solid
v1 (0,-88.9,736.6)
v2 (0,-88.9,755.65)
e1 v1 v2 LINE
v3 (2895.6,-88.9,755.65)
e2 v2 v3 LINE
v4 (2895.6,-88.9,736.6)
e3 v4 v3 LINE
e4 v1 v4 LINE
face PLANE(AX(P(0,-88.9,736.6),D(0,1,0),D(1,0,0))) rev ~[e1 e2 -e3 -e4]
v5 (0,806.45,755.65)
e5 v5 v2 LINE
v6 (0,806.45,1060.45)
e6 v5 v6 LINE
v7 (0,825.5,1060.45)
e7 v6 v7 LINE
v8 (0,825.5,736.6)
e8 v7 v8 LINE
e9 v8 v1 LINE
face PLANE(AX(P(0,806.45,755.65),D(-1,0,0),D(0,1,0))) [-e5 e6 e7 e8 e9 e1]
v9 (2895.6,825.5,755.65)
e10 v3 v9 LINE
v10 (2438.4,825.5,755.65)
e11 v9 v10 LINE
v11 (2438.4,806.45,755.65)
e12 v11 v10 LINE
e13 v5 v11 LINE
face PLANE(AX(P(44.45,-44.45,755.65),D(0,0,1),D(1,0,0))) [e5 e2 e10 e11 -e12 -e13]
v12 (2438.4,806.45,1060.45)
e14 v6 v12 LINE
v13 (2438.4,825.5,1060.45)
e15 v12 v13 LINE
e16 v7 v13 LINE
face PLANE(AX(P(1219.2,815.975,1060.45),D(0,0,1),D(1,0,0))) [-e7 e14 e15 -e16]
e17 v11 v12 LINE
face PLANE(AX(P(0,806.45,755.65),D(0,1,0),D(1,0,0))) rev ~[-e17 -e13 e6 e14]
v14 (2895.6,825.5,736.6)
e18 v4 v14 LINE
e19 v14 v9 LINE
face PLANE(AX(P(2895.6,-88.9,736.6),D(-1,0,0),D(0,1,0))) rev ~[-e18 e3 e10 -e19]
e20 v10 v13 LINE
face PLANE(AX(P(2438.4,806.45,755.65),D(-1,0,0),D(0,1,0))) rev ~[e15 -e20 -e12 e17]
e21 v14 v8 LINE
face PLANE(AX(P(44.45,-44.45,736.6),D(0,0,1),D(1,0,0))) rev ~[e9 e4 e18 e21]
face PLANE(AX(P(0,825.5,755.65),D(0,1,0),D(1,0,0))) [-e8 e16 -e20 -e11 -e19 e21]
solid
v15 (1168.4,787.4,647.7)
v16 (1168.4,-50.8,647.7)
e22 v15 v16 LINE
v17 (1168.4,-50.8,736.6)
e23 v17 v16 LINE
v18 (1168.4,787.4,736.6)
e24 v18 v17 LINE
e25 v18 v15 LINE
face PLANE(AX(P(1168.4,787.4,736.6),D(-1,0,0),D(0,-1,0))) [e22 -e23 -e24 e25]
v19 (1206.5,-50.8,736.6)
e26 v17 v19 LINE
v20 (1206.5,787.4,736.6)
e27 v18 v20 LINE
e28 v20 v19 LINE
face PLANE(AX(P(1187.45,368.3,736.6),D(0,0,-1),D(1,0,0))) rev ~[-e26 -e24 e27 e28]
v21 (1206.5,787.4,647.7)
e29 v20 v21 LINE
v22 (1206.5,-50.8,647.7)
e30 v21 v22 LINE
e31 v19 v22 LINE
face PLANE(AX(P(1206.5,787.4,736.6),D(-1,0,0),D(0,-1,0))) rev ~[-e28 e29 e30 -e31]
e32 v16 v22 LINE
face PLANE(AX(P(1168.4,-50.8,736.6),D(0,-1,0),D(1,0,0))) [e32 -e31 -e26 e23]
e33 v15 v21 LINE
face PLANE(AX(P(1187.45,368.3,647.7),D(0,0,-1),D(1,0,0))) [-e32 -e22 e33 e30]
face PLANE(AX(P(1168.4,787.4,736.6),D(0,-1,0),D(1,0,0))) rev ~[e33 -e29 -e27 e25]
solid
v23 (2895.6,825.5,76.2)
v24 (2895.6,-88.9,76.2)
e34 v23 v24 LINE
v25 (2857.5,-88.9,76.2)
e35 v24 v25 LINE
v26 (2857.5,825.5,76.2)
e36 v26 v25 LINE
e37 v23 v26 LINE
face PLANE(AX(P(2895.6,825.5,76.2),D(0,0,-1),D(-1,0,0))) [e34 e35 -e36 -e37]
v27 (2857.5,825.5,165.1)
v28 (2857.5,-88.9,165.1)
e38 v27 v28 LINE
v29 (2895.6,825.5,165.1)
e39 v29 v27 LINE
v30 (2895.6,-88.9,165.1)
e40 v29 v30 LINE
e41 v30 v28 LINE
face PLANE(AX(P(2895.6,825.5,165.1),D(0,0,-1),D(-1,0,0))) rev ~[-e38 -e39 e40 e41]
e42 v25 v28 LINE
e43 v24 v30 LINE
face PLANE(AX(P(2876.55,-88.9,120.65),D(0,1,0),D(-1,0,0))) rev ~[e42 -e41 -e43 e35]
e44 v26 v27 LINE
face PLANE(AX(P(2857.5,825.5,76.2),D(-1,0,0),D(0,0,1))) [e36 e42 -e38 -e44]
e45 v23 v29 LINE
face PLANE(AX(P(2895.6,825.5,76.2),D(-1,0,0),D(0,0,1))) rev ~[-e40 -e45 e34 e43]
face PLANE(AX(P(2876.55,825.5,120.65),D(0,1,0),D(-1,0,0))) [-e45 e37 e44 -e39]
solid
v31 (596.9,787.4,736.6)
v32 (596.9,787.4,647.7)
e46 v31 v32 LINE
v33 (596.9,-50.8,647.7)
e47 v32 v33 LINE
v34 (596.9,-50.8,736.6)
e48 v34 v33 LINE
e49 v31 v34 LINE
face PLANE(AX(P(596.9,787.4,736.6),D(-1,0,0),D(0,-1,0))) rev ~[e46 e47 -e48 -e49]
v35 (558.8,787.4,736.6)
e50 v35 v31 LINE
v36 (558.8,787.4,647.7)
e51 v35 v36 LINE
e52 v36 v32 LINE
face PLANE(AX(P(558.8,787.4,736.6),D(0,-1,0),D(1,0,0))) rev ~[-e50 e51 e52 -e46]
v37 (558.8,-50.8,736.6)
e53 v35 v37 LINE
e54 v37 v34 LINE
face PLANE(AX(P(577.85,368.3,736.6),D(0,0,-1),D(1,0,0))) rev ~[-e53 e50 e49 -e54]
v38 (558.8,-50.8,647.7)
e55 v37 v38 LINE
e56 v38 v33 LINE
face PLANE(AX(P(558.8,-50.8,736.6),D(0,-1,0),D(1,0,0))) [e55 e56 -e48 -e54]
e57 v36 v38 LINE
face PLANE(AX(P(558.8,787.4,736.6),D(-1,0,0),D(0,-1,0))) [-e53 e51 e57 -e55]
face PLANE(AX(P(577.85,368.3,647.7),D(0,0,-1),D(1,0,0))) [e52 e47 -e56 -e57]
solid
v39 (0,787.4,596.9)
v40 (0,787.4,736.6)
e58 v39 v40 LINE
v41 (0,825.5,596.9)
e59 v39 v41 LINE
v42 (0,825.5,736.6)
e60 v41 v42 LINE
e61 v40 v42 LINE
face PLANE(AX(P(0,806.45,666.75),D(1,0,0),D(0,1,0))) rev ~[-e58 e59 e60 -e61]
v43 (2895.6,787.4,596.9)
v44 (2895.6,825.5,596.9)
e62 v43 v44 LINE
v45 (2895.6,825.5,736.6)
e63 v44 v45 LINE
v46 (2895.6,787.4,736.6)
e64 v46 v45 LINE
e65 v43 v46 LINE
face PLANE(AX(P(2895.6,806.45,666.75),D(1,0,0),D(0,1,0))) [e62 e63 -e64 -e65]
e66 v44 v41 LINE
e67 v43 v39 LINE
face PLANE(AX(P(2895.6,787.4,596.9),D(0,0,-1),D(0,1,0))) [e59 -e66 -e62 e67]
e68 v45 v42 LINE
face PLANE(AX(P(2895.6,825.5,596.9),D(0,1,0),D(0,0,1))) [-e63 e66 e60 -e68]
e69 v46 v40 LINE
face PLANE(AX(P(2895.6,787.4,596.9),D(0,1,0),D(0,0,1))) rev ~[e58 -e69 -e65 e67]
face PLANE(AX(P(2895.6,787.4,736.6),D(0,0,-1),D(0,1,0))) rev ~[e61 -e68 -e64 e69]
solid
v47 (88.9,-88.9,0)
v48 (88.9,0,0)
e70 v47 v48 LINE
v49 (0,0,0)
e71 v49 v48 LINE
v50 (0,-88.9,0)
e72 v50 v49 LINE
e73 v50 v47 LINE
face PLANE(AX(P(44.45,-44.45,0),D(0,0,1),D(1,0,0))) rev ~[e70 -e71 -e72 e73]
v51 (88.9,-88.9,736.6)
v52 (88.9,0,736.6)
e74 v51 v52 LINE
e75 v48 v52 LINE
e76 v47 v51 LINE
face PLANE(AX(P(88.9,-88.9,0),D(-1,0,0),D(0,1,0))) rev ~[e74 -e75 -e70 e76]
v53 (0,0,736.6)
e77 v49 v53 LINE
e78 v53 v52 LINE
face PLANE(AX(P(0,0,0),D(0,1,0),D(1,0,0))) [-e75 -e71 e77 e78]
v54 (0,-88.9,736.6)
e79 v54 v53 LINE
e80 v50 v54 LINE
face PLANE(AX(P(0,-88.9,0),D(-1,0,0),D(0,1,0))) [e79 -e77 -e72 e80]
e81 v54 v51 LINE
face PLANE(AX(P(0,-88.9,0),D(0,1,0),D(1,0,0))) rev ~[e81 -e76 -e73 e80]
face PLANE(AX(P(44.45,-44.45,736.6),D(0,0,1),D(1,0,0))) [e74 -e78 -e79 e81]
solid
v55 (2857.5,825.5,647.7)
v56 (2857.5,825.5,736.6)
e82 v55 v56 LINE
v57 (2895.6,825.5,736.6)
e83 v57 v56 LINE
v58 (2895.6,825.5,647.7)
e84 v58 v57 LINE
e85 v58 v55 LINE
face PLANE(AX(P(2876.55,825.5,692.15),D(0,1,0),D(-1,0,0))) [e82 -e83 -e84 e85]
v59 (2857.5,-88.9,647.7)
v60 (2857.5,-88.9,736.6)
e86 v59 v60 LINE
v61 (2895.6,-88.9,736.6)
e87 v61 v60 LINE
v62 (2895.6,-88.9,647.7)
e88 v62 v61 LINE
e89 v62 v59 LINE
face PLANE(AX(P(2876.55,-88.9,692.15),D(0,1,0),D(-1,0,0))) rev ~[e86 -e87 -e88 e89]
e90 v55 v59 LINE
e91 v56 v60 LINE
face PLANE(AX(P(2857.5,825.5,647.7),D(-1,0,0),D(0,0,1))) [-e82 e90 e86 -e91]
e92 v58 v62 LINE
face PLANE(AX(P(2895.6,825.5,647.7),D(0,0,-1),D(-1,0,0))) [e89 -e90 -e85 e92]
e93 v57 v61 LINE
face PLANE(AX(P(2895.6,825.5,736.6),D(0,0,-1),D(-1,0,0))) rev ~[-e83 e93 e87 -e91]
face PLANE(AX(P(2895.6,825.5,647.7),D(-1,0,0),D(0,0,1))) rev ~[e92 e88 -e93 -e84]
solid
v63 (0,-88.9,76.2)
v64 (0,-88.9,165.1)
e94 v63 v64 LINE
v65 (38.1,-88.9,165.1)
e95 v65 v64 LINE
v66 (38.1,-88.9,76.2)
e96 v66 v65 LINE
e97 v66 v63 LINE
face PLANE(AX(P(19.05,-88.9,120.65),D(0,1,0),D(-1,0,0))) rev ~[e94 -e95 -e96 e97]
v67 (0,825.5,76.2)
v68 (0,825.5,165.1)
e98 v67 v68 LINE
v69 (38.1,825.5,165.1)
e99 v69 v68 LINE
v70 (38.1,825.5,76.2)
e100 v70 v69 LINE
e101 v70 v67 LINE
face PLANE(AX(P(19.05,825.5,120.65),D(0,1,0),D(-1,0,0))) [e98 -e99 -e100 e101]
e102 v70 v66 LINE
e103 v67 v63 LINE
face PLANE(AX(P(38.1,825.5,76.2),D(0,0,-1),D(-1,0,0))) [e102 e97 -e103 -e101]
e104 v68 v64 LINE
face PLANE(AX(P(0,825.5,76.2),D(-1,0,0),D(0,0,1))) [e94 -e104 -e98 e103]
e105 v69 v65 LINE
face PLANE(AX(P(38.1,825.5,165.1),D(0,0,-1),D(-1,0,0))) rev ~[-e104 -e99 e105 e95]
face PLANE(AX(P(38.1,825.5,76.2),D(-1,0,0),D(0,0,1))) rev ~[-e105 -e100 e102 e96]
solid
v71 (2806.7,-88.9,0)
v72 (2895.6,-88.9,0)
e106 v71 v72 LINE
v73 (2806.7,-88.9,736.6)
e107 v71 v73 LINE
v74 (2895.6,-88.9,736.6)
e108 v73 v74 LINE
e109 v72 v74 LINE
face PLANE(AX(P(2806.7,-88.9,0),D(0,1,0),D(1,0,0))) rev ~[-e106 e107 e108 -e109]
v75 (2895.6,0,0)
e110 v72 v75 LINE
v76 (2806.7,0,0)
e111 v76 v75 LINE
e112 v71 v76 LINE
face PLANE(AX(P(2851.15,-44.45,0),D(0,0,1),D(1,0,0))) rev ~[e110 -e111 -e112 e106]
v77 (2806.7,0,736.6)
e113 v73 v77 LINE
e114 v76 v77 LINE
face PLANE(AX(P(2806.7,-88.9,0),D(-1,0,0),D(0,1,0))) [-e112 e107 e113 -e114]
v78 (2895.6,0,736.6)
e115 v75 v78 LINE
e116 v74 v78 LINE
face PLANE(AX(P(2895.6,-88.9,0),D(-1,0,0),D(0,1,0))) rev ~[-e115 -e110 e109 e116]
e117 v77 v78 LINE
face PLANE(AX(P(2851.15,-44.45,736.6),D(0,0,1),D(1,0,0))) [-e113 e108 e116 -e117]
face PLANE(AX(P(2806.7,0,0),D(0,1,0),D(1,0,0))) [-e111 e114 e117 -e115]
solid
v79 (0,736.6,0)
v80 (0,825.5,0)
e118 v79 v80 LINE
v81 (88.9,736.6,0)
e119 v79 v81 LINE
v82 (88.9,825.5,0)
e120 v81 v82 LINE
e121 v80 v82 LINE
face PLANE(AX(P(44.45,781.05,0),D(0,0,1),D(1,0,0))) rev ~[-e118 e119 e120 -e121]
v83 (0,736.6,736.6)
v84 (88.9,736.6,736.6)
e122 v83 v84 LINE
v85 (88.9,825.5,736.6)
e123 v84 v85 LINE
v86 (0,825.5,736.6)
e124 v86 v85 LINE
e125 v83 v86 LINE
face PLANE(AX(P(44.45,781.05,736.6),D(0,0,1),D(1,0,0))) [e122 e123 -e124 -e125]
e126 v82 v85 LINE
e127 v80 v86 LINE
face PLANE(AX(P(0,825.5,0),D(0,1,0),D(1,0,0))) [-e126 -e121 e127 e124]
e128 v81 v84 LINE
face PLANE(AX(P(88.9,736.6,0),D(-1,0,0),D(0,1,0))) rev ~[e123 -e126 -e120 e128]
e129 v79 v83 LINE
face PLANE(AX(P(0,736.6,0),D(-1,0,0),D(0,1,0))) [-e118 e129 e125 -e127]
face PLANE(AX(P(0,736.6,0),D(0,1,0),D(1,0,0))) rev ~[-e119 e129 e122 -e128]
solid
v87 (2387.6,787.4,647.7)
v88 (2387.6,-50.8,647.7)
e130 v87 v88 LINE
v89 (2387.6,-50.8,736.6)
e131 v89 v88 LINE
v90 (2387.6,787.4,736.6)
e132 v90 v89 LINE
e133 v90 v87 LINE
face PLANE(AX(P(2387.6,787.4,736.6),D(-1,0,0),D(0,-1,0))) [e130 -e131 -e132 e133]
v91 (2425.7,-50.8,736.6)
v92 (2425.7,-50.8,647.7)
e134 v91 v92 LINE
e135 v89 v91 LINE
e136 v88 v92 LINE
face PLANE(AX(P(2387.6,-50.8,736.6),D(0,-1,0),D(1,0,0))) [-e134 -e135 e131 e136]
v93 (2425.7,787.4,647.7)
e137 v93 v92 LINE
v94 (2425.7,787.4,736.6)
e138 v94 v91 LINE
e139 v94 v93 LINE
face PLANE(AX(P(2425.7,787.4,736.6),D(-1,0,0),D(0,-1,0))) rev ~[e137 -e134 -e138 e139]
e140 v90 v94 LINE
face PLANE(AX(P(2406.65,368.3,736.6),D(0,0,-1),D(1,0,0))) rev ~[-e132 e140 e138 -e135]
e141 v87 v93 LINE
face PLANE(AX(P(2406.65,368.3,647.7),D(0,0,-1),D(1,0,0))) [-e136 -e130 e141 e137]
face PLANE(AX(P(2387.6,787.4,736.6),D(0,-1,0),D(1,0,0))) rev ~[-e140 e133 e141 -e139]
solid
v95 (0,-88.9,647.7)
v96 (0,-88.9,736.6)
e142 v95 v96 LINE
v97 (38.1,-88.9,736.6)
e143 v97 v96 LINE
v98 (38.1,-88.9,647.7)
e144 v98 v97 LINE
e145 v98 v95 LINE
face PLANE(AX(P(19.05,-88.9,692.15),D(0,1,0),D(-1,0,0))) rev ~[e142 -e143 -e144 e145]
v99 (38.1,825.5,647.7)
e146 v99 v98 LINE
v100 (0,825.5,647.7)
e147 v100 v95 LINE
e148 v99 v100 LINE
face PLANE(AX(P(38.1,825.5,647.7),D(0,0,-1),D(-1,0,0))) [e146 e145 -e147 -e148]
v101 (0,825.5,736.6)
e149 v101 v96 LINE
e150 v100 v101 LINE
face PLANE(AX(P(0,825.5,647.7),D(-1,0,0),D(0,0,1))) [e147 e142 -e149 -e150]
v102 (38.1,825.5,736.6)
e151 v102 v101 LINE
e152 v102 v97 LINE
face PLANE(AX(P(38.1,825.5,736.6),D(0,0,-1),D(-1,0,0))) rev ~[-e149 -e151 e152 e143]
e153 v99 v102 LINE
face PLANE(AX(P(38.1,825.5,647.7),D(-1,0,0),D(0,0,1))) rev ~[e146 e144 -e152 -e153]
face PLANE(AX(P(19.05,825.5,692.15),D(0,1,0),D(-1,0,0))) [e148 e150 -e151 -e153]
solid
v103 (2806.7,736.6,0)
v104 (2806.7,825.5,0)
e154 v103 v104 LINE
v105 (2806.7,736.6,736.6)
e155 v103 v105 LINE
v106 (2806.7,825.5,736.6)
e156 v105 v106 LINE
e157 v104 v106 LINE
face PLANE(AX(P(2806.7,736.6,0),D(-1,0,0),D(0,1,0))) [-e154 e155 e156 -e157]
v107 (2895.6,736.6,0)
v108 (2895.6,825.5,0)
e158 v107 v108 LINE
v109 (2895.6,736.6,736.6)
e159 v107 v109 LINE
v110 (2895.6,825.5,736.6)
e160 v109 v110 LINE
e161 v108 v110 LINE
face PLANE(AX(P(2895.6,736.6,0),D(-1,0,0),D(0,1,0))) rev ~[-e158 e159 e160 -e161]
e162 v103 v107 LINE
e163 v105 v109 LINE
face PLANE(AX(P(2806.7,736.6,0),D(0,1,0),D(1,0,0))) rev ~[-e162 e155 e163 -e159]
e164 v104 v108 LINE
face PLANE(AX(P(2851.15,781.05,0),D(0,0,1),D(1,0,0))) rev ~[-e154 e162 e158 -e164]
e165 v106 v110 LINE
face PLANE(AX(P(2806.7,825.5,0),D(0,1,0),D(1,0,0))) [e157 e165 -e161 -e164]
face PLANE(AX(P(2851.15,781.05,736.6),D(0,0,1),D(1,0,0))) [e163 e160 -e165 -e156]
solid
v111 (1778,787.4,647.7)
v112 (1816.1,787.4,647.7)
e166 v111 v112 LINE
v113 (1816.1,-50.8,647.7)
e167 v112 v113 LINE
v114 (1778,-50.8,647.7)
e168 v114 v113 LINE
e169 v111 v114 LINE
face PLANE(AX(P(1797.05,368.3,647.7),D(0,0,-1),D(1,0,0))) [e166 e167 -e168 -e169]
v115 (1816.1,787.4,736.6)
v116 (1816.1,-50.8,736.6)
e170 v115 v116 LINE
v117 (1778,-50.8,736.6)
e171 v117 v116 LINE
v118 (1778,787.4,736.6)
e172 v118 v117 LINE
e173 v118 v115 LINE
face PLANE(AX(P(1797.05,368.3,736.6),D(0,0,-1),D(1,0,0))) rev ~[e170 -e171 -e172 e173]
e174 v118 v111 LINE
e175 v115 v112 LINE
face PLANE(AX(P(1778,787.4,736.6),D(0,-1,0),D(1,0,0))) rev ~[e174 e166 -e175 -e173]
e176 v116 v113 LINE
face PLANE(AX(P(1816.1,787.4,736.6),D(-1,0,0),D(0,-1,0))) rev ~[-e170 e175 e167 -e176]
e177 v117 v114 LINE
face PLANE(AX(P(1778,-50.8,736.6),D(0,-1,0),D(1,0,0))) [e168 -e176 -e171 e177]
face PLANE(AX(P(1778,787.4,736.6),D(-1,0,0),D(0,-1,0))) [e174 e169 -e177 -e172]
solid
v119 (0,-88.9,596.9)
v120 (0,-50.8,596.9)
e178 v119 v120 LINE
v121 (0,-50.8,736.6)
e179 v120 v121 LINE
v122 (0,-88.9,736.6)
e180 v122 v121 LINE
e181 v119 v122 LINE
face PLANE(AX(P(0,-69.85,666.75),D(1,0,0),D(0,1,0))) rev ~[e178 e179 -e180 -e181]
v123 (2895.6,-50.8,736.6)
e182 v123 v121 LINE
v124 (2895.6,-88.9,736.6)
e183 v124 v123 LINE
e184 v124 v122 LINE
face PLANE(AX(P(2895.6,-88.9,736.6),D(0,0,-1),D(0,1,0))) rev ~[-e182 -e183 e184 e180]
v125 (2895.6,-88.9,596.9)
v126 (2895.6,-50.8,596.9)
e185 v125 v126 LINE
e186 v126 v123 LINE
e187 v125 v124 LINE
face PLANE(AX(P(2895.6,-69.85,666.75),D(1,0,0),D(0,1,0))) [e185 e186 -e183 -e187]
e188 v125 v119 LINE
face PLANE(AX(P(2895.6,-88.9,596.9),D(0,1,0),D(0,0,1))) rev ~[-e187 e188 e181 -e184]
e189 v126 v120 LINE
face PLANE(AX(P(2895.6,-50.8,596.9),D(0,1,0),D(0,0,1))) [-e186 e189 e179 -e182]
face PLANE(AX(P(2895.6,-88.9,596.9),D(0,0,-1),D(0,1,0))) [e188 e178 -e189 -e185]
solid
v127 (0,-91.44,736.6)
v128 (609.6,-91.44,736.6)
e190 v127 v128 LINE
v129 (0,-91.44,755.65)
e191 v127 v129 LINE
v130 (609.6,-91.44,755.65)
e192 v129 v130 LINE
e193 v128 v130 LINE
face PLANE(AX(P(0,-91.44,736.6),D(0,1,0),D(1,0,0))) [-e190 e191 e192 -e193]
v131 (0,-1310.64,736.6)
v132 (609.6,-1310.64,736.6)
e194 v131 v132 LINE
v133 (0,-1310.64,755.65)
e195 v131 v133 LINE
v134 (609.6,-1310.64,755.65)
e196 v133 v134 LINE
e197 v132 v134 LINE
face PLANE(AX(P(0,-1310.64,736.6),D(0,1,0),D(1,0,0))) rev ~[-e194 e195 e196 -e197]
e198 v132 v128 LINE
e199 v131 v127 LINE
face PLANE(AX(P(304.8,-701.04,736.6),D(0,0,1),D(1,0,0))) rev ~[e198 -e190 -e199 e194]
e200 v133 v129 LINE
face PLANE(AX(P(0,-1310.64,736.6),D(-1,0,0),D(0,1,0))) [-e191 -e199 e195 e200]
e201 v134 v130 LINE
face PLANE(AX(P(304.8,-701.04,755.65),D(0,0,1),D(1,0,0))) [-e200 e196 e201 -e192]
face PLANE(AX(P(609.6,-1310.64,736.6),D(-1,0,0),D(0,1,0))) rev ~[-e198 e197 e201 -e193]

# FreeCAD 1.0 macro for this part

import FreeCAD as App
import Part
import Sketcher

V = App.Vector
Q = App.Units.Quantity

doc = App.newDocument("Part")
params = doc.addObject("Spreadsheet::Sheet", "Params")
for row, (alias, value) in enumerate([
    ("sketch1_width", "3.5 in"),
    ("pad1_length", "29 in"),
    ("sketch2_width", "3.5 in"),
    ("pad2_length", "29 in"),
    ("sketch3_width", "3.5 in"),
    ("pad3_length", "29 in"),
    ("sketch4_width", "3.5 in"),
    ("pad4_length", "29 in"),
    ("sketch5_width", "114 in"),
    ("sketch5_height", "36 in"),
    ("pad5_length", "0.75 in"),
    ("sketch6_width", "96 in"),
    ("sketch6_height", "0.75 in"),
    ("pad6_length", "12 in"),
    ("sketch7_width", "24 in"),
    ("sketch7_height", "48 in"),
    ("pad7_length", "0.75 in"),
    ("sketch8_width", "1.5 in"),
    ("sketch8_height", "3.5 in"),
    ("pad8_length", "36 in"),
    ("sketch9_width", "1.5 in"),
    ("sketch9_height", "3.5 in"),
    ("pad9_length", "36 in"),
    ("sketch10_width", "1.5 in"),
    ("sketch10_height", "3.5 in"),
    ("pad10_length", "36 in"),
    ("sketch11_width", "1.5 in"),
    ("sketch11_height", "3.5 in"),
    ("pad11_length", "36 in"),
    ("sketch12_width", "1.5 in"),
    ("sketch12_height", "5.5 in"),
    ("pad12_length", "114 in"),
    ("sketch13_width", "1.5 in"),
    ("sketch13_height", "5.5 in"),
    ("pad13_length", "114 in"),
    ("sketch14_height", "33 in"),
    ("sketch14_width", "1.5 in"),
    ("pad14_length", "3.5 in"),
    ("sketch15_height", "33 in"),
    ("sketch15_width", "1.5 in"),
    ("pad15_length", "3.5 in"),
    ("sketch16_height", "33 in"),
    ("sketch16_width", "1.5 in"),
    ("pad16_length", "3.5 in"),
    ("sketch17_height", "33 in"),
    ("sketch17_width", "1.5 in"),
    ("pad17_length", "3.5 in"),
], start=1):
    params.set(f"A{row}", alias)
    params.set(f"B{row}", "=" + value)
    params.setAlias(f"B{row}", alias)

body = doc.addObject("PartDesign::Body", "Body")

sketch1 = body.newObject("Sketcher::SketchObject", "Sketch")
sketch1.AttachmentSupport = (doc.getObject("XY_Plane"), [""])
sketch1.MapMode = "FlatFace"
sketch1.addGeometry([
    Part.LineSegment(V(0, 0, 0), V(0, -89, 0)),
    Part.LineSegment(V(0, -89, 0), V(89, -89, 0)),
    Part.LineSegment(V(89, -89, 0), V(89, 0, 0)),
    Part.LineSegment(V(89, 0, 0), V(0, 0, 0)),
], False)
sketch1.addConstraint([
    Sketcher.Constraint("Coincident", 0, 2, 1, 1),
    Sketcher.Constraint("Coincident", 1, 2, 2, 1),
    Sketcher.Constraint("Coincident", 2, 2, 3, 1),
    Sketcher.Constraint("Coincident", 3, 2, 0, 1),
    Sketcher.Constraint("Vertical", 0),
    Sketcher.Constraint("Horizontal", 1),
    Sketcher.Constraint("Vertical", 2),
    Sketcher.Constraint("Horizontal", 3),
    Sketcher.Constraint("Coincident", 3, 2, -1, 1),
    Sketcher.Constraint("Equal", 3, 0),
    Sketcher.Constraint("DistanceX", 1, 1, 1, 2, Q("3.5 in")),
])
sketch1.setExpression("Constraints[10]", "Params.sketch1_width")
pad1 = body.newObject("PartDesign::Pad", "Pad")
pad1.Profile = sketch1
pad1.setExpression("Length", "Params.pad1_length")
body2 = doc.addObject("PartDesign::Body", "Body001")

sketch2 = body2.newObject("Sketcher::SketchObject", "Sketch001")
sketch2.AttachmentSupport = (doc.getObject("XY_Plane001"), [""])
sketch2.MapMode = "FlatFace"
sketch2.addGeometry([
    Part.LineSegment(V(0, 826, 0), V(0, 737, 0)),
    Part.LineSegment(V(0, 737, 0), V(89, 737, 0)),
    Part.LineSegment(V(89, 737, 0), V(89, 826, 0)),
    Part.LineSegment(V(89, 826, 0), V(0, 826, 0)),
], False)
sketch2.addConstraint([
    Sketcher.Constraint("Coincident", 0, 2, 1, 1),
    Sketcher.Constraint("Coincident", 1, 2, 2, 1),
    Sketcher.Constraint("Coincident", 2, 2, 3, 1),
    Sketcher.Constraint("Coincident", 3, 2, 0, 1),
    Sketcher.Constraint("Vertical", 0),
    Sketcher.Constraint("Horizontal", 1),
    Sketcher.Constraint("Vertical", 2),
    Sketcher.Constraint("Horizontal", 3),
    Sketcher.Constraint("PointOnObject", 0, 2, -2),
    Sketcher.Constraint("Equal", 3, 0),
    Sketcher.Constraint("DistanceX", 1, 1, 1, 2, Q("3.5 in")),
    Sketcher.Constraint("DistanceY", -1, 1, 0, 2, Q("29 in")),
])
sketch2.setExpression("Constraints[10]", "Params.sketch2_width")
pad2 = body2.newObject("PartDesign::Pad", "Pad001")
pad2.Profile = sketch2
pad2.setExpression("Length", "Params.pad2_length")
body3 = doc.addObject("PartDesign::Body", "Body002")

sketch3 = body3.newObject("Sketcher::SketchObject", "Sketch002")
sketch3.AttachmentSupport = (doc.getObject("XY_Plane002"), [""])
sketch3.MapMode = "FlatFace"
sketch3.addGeometry([
    Part.LineSegment(V(2807, 0, 0), V(2807, -89, 0)),
    Part.LineSegment(V(2807, -89, 0), V(2896, -89, 0)),
    Part.LineSegment(V(2896, -89, 0), V(2896, 0, 0)),
    Part.LineSegment(V(2896, 0, 0), V(2807, 0, 0)),
], False)
sketch3.addConstraint([
    Sketcher.Constraint("Coincident", 0, 2, 1, 1),
    Sketcher.Constraint("Coincident", 1, 2, 2, 1),
    Sketcher.Constraint("Coincident", 2, 2, 3, 1),
    Sketcher.Constraint("Coincident", 3, 2, 0, 1),
    Sketcher.Constraint("Vertical", 0),
    Sketcher.Constraint("Horizontal", 1),
    Sketcher.Constraint("Vertical", 2),
    Sketcher.Constraint("Horizontal", 3),
    Sketcher.Constraint("PointOnObject", 2, 2, -1),
    Sketcher.Constraint("Equal", 3, 0),
    Sketcher.Constraint("DistanceX", 1, 1, 1, 2, Q("3.5 in")),
    Sketcher.Constraint("DistanceX", -1, 1, 1, 2, Q("114 in")),
])
sketch3.setExpression("Constraints[10]", "Params.sketch3_width")
pad3 = body3.newObject("PartDesign::Pad", "Pad002")
pad3.Profile = sketch3
pad3.setExpression("Length", "Params.pad3_length")
body4 = doc.addObject("PartDesign::Body", "Body003")

sketch4 = body4.newObject("Sketcher::SketchObject", "Sketch003")
sketch4.AttachmentSupport = (doc.getObject("XY_Plane003"), [""])
sketch4.MapMode = "FlatFace"
sketch4.addGeometry([
    Part.LineSegment(V(2807, 826, 0), V(2807, 737, 0)),
    Part.LineSegment(V(2807, 737, 0), V(2896, 737, 0)),
    Part.LineSegment(V(2896, 737, 0), V(2896, 826, 0)),
    Part.LineSegment(V(2896, 826, 0), V(2807, 826, 0)),
], False)
sketch4.addConstraint([
    Sketcher.Constraint("Coincident", 0, 2, 1, 1),
    Sketcher.Constraint("Coincident", 1, 2, 2, 1),
    Sketcher.Constraint("Coincident", 2, 2, 3, 1),
    Sketcher.Constraint("Coincident", 3, 2, 0, 1),
    Sketcher.Constraint("Vertical", 0),
    Sketcher.Constraint("Horizontal", 1),
    Sketcher.Constraint("Vertical", 2),
    Sketcher.Constraint("Horizontal", 3),
    Sketcher.Constraint("Equal", 3, 0),
    Sketcher.Constraint("DistanceX", 1, 1, 1, 2, Q("3.5 in")),
    Sketcher.Constraint("DistanceY", -1, 1, 0, 2, Q("29 in")),
    Sketcher.Constraint("DistanceX", -1, 1, 1, 2, Q("114 in")),
])
sketch4.setExpression("Constraints[9]", "Params.sketch4_width")
pad4 = body4.newObject("PartDesign::Pad", "Pad003")
pad4.Profile = sketch4
pad4.setExpression("Length", "Params.pad4_length")
body5 = doc.addObject("PartDesign::Body", "Body004")

sketch5 = body5.newObject("Sketcher::SketchObject", "Sketch004")
sketch5.AttachmentSupport = (doc.getObject("XY_Plane004"), [""])
sketch5.MapMode = "FlatFace"
sketch5.AttachmentOffset = App.Placement(V(0, 0, 29 * 25.4), App.Rotation())
sketch5.addGeometry([
    Part.LineSegment(V(0, -89, 0), V(2896, -89, 0)),
    Part.LineSegment(V(2896, -89, 0), V(2896, 826, 0)),
    Part.LineSegment(V(2896, 826, 0), V(0, 826, 0)),
    Part.LineSegment(V(0, 826, 0), V(0, -89, 0)),
], False)
sketch5.addConstraint([
    Sketcher.Constraint("Coincident", 0, 2, 1, 1),
    Sketcher.Constraint("Coincident", 1, 2, 2, 1),
    Sketcher.Constraint("Coincident", 2, 2, 3, 1),
    Sketcher.Constraint("Coincident", 3, 2, 0, 1),
    Sketcher.Constraint("Horizontal", 0),
    Sketcher.Constraint("Vertical", 1),
    Sketcher.Constraint("Horizontal", 2),
    Sketcher.Constraint("Vertical", 3),
    Sketcher.Constraint("PointOnObject", 2, 2, -2),
    Sketcher.Constraint("DistanceX", 0, 1, 0, 2, Q("114 in")),
    Sketcher.Constraint("DistanceY", 1, 1, 1, 2, Q("36 in")),
    Sketcher.Constraint("DistanceY", 0, 2, -1, 1, Q("3.5 in")),
])
sketch5.setExpression("Constraints[9]", "Params.sketch5_width")
sketch5.setExpression("Constraints[10]", "Params.sketch5_height")
pad5 = body5.newObject("PartDesign::Pad", "Pad004")
pad5.Profile = sketch5
pad5.setExpression("Length", "Params.pad5_length")

sketch6 = body5.newObject("Sketcher::SketchObject", "Sketch005")
sketch6.AttachmentSupport = (doc.getObject("XY_Plane004"), [""])
sketch6.MapMode = "FlatFace"
sketch6.AttachmentOffset = App.Placement(V(0, 0, 29.75 * 25.4), App.Rotation())
sketch6.addGeometry([
    Part.LineSegment(V(0, 826, 0), V(0, 806, 0)),
    Part.LineSegment(V(0, 806, 0), V(2438, 806, 0)),
    Part.LineSegment(V(2438, 806, 0), V(2438, 826, 0)),
    Part.LineSegment(V(2438, 826, 0), V(0, 826, 0)),
], False)
sketch6.addConstraint([
    Sketcher.Constraint("Coincident", 0, 2, 1, 1),
    Sketcher.Constraint("Coincident", 1, 2, 2, 1),
    Sketcher.Constraint("Coincident", 2, 2, 3, 1),
    Sketcher.Constraint("Coincident", 3, 2, 0, 1),
    Sketcher.Constraint("Vertical", 0),
    Sketcher.Constraint("Horizontal", 1),
    Sketcher.Constraint("Vertical", 2),
    Sketcher.Constraint("Horizontal", 3),
    Sketcher.Constraint("PointOnObject", 0, 2, -2),
    Sketcher.Constraint("DistanceX", 1, 1, 1, 2, Q("96 in")),
    Sketcher.Constraint("DistanceY", 0, 2, 0, 1, Q("0.75 in")),
    Sketcher.Constraint("DistanceY", -1, 1, 2, 2, Q("32.5 in")),
])
sketch6.setExpression("Constraints[9]", "Params.sketch6_width")
sketch6.setExpression("Constraints[10]", "Params.sketch6_height")
pad6 = body5.newObject("PartDesign::Pad", "Pad005")
pad6.Profile = sketch6
pad6.setExpression("Length", "Params.pad6_length")
body6 = doc.addObject("PartDesign::Body", "Body005")

sketch7 = body6.newObject("Sketcher::SketchObject", "Sketch006")
sketch7.AttachmentSupport = (doc.getObject("XY_Plane005"), [""])
sketch7.MapMode = "FlatFace"
sketch7.AttachmentOffset = App.Placement(V(0, 0, 29 * 25.4), App.Rotation())
sketch7.addGeometry([
    Part.LineSegment(V(0, -91, 0), V(0, -1311, 0)),
    Part.LineSegment(V(0, -1311, 0), V(610, -1311, 0)),
    Part.LineSegment(V(610, -1311, 0), V(610, -91, 0)),
    Part.LineSegment(V(610, -91, 0), V(0, -91, 0)),
], False)
sketch7.addConstraint([
    Sketcher.Constraint("Coincident", 0, 2, 1, 1),
    Sketcher.Constraint("Coincident", 1, 2, 2, 1),
    Sketcher.Constraint("Coincident", 2, 2, 3, 1),
    Sketcher.Constraint("Coincident", 3, 2, 0, 1),
    Sketcher.Constraint("Vertical", 0),
    Sketcher.Constraint("Horizontal", 1),
    Sketcher.Constraint("Vertical", 2),
    Sketcher.Constraint("Horizontal", 3),
    Sketcher.Constraint("PointOnObject", 0, 2, -2),
    Sketcher.Constraint("DistanceX", 1, 1, 1, 2, Q("24 in")),
    Sketcher.Constraint("DistanceY", 0, 2, 0, 1, Q("48 in")),
    Sketcher.Constraint("DistanceY", 0, 2, -1, 1, Q("51.6 in")),
])
sketch7.setExpression("Constraints[9]", "Params.sketch7_width")
sketch7.setExpression("Constraints[10]", "Params.sketch7_height")
pad7 = body6.newObject("PartDesign::Pad", "Pad006")
pad7.Profile = sketch7
pad7.setExpression("Length", "Params.pad7_length")
body7 = doc.addObject("PartDesign::Body", "Body006")

sketch8 = body7.newObject("Sketcher::SketchObject", "Sketch007")
sketch8.AttachmentSupport = (doc.getObject("XZ_Plane006"), [""])
sketch8.MapMode = "FlatFace"
sketch8.AttachmentOffset = App.Placement(V(0, 0, -32.5 * 25.4), App.Rotation())
sketch8.addGeometry([
    Part.LineSegment(V(2896, 737, 0), V(2896, 648, 0)),
    Part.LineSegment(V(2896, 648, 0), V(2858, 648, 0)),
    Part.LineSegment(V(2858, 648, 0), V(2858, 737, 0)),
    Part.LineSegment(V(2858, 737, 0), V(2896, 737, 0)),
], False)
sketch8.addConstraint([
    Sketcher.Constraint("Coincident", 0, 2, 1, 1),
    Sketcher.Constraint("Coincident", 1, 2, 2, 1),
    Sketcher.Constraint("Coincident", 2, 2, 3, 1),
    Sketcher.Constraint("Coincident", 3, 2, 0, 1),
    Sketcher.Constraint("Vertical", 0),
    Sketcher.Constraint("Horizontal", 1),
    Sketcher.Constraint("Vertical", 2),
    Sketcher.Constraint("Horizontal", 3),
    Sketcher.Constraint("DistanceX", 1, 2, 1, 1, Q("1.5 in")),
    Sketcher.Constraint("DistanceY", 0, 2, 0, 1, Q("3.5 in")),
    Sketcher.Constraint("DistanceX", -1, 1, 0, 2, Q("114 in")),
    Sketcher.Constraint("DistanceY", -1, 1, 2, 2, Q("29 in")),
])
sketch8.setExpression("Constraints[8]", "Params.sketch8_width")
sketch8.setExpression("Constraints[9]", "Params.sketch8_height")
pad8 = body7.newObject("PartDesign::Pad", "Pad007")
pad8.Profile = sketch8
pad8.setExpression("Length", "Params.pad8_length")
body8 = doc.addObject("PartDesign::Body", "Body007")

sketch9 = body8.newObject("Sketcher::SketchObject", "Sketch008")
sketch9.AttachmentSupport = (doc.getObject("XZ_Plane007"), [""])
sketch9.MapMode = "FlatFace"
sketch9.AttachmentOffset = App.Placement(V(0, 0, -32.5 * 25.4), App.Rotation())
sketch9.addGeometry([
    Part.LineSegment(V(2896, 165, 0), V(2896, 76, 0)),
    Part.LineSegment(V(2896, 76, 0), V(2858, 76, 0)),
    Part.LineSegment(V(2858, 76, 0), V(2858, 165, 0)),
    Part.LineSegment(V(2858, 165, 0), V(2896, 165, 0)),
], False)
sketch9.addConstraint([
    Sketcher.Constraint("Coincident", 0, 2, 1, 1),
    Sketcher.Constraint("Coincident", 1, 2, 2, 1),
    Sketcher.Constraint("Coincident", 2, 2, 3, 1),
    Sketcher.Constraint("Coincident", 3, 2, 0, 1),
    Sketcher.Constraint("Vertical", 0),
    Sketcher.Constraint("Horizontal", 1),
    Sketcher.Constraint("Vertical", 2),
    Sketcher.Constraint("Horizontal", 3),
    Sketcher.Constraint("DistanceX", 1, 2, 1, 1, Q("1.5 in")),
    Sketcher.Constraint("DistanceY", 0, 2, 0, 1, Q("3.5 in")),
    Sketcher.Constraint("DistanceX", -1, 1, 0, 2, Q("114 in")),
    Sketcher.Constraint("DistanceY", -1, 1, 0, 2, Q("3 in")),
])
sketch9.setExpression("Constraints[8]", "Params.sketch9_width")
sketch9.setExpression("Constraints[9]", "Params.sketch9_height")
pad9 = body8.newObject("PartDesign::Pad", "Pad008")
pad9.Profile = sketch9
pad9.setExpression("Length", "Params.pad9_length")
body9 = doc.addObject("PartDesign::Body", "Body008")

sketch10 = body9.newObject("Sketcher::SketchObject", "Sketch009")
sketch10.AttachmentSupport = (doc.getObject("XZ_Plane008"), [""])
sketch10.MapMode = "FlatFace"
sketch10.AttachmentOffset = App.Placement(V(0, 0, -32.5 * 25.4), App.Rotation())
sketch10.addGeometry([
    Part.LineSegment(V(38, 737, 0), V(38, 648, 0)),
    Part.LineSegment(V(38, 648, 0), V(0, 648, 0)),
    Part.LineSegment(V(0, 648, 0), V(0, 737, 0)),
    Part.LineSegment(V(0, 737, 0), V(38, 737, 0)),
], False)
sketch10.addConstraint([
    Sketcher.Constraint("Coincident", 0, 2, 1, 1),
    Sketcher.Constraint("Coincident", 1, 2, 2, 1),
    Sketcher.Constraint("Coincident", 2, 2, 3, 1),
    Sketcher.Constraint("Coincident", 3, 2, 0, 1),
    Sketcher.Constraint("Vertical", 0),
    Sketcher.Constraint("Horizontal", 1),
    Sketcher.Constraint("Vertical", 2),
    Sketcher.Constraint("Horizontal", 3),
    Sketcher.Constraint("PointOnObject", 1, 2, -2),
    Sketcher.Constraint("DistanceX", 1, 2, 1, 1, Q("1.5 in")),
    Sketcher.Constraint("DistanceY", 0, 2, 0, 1, Q("3.5 in")),
    Sketcher.Constraint("DistanceY", -1, 1, 2, 2, Q("29 in")),
])
sketch10.setExpression("Constraints[9]", "Params.sketch10_width")
sketch10.setExpression("Constraints[10]", "Params.sketch10_height")
pad10 = body9.newObject("PartDesign::Pad", "Pad009")
pad10.Profile = sketch10
pad10.setExpression("Length", "Params.pad10_length")
body10 = doc.addObject("PartDesign::Body", "Body009")

sketch11 = body10.newObject("Sketcher::SketchObject", "Sketch010")
sketch11.AttachmentSupport = (doc.getObject("XZ_Plane009"), [""])
sketch11.MapMode = "FlatFace"
sketch11.AttachmentOffset = App.Placement(V(0, 0, -32.5 * 25.4), App.Rotation())
sketch11.addGeometry([
    Part.LineSegment(V(38, 165, 0), V(38, 76, 0)),
    Part.LineSegment(V(38, 76, 0), V(0, 76, 0)),
    Part.LineSegment(V(0, 76, 0), V(0, 165, 0)),
    Part.LineSegment(V(0, 165, 0), V(38, 165, 0)),
], False)
sketch11.addConstraint([
    Sketcher.Constraint("Coincident", 0, 2, 1, 1),
    Sketcher.Constraint("Coincident", 1, 2, 2, 1),
    Sketcher.Constraint("Coincident", 2, 2, 3, 1),
    Sketcher.Constraint("Coincident", 3, 2, 0, 1),
    Sketcher.Constraint("Vertical", 0),
    Sketcher.Constraint("Horizontal", 1),
    Sketcher.Constraint("Vertical", 2),
    Sketcher.Constraint("Horizontal", 3),
    Sketcher.Constraint("PointOnObject", 1, 2, -2),
    Sketcher.Constraint("DistanceX", 1, 2, 1, 1, Q("1.5 in")),
    Sketcher.Constraint("DistanceY", 0, 2, 0, 1, Q("3.5 in")),
    Sketcher.Constraint("DistanceY", -1, 1, 0, 2, Q("3 in")),
])
sketch11.setExpression("Constraints[9]", "Params.sketch11_width")
sketch11.setExpression("Constraints[10]", "Params.sketch11_height")
pad11 = body10.newObject("PartDesign::Pad", "Pad010")
pad11.Profile = sketch11
pad11.setExpression("Length", "Params.pad11_length")
body11 = doc.addObject("PartDesign::Body", "Body010")

sketch12 = body11.newObject("Sketcher::SketchObject", "Sketch011")
sketch12.AttachmentSupport = (doc.getObject("YZ_Plane010"), [""])
sketch12.MapMode = "FlatFace"
sketch12.AttachmentOffset = App.Placement(V(0, 0, 114 * 25.4), App.Rotation())
sketch12.addGeometry([
    Part.LineSegment(V(-89, 737, 0), V(-89, 597, 0)),
    Part.LineSegment(V(-89, 597, 0), V(-51, 597, 0)),
    Part.LineSegment(V(-51, 597, 0), V(-51, 737, 0)),
    Part.LineSegment(V(-51, 737, 0), V(-89, 737, 0)),
], False)
sketch12.addConstraint([
    Sketcher.Constraint("Coincident", 0, 2, 1, 1),
    Sketcher.Constraint("Coincident", 1, 2, 2, 1),
    Sketcher.Constraint("Coincident", 2, 2, 3, 1),
    Sketcher.Constraint("Coincident", 3, 2, 0, 1),
    Sketcher.Constraint("Vertical", 0),
    Sketcher.Constraint("Horizontal", 1),
    Sketcher.Constraint("Vertical", 2),
    Sketcher.Constraint("Horizontal", 3),
    Sketcher.Constraint("DistanceX", 1, 1, 1, 2, Q("1.5 in")),
    Sketcher.Constraint("DistanceY", 0, 2, 0, 1, Q("5.5 in")),
    Sketcher.Constraint("DistanceX", 1, 2, -1, 1, Q("2 in")),
    Sketcher.Constraint("DistanceY", -1, 1, 2, 2, Q("29 in")),
])
sketch12.setExpression("Constraints[8]", "Params.sketch12_width")
sketch12.setExpression("Constraints[9]", "Params.sketch12_height")
pad12 = body11.newObject("PartDesign::Pad", "Pad011")
pad12.Profile = sketch12
pad12.setExpression("Length", "Params.pad12_length")
pad12.Reversed = True
body12 = doc.addObject("PartDesign::Body", "Body011")

sketch13 = body12.newObject("Sketcher::SketchObject", "Sketch012")
sketch13.AttachmentSupport = (doc.getObject("YZ_Plane011"), [""])
sketch13.MapMode = "FlatFace"
sketch13.AttachmentOffset = App.Placement(V(0, 0, 114 * 25.4), App.Rotation())
sketch13.addGeometry([
    Part.LineSegment(V(787, 737, 0), V(787, 597, 0)),
    Part.LineSegment(V(787, 597, 0), V(826, 597, 0)),
    Part.LineSegment(V(826, 597, 0), V(826, 737, 0)),
    Part.LineSegment(V(826, 737, 0), V(787, 737, 0)),
], False)
sketch13.addConstraint([
    Sketcher.Constraint("Coincident", 0, 2, 1, 1),
    Sketcher.Constraint("Coincident", 1, 2, 2, 1),
    Sketcher.Constraint("Coincident", 2, 2, 3, 1),
    Sketcher.Constraint("Coincident", 3, 2, 0, 1),
    Sketcher.Constraint("Vertical", 0),
    Sketcher.Constraint("Horizontal", 1),
    Sketcher.Constraint("Vertical", 2),
    Sketcher.Constraint("Horizontal", 3),
    Sketcher.Constraint("DistanceX", 1, 1, 1, 2, Q("1.5 in")),
    Sketcher.Constraint("DistanceY", 0, 2, 0, 1, Q("5.5 in")),
    Sketcher.Constraint("DistanceX", -1, 1, 0, 2, Q("31 in")),
    Sketcher.Constraint("DistanceY", -1, 1, 2, 2, Q("29 in")),
])
sketch13.setExpression("Constraints[8]", "Params.sketch13_width")
sketch13.setExpression("Constraints[9]", "Params.sketch13_height")
pad13 = body12.newObject("PartDesign::Pad", "Pad012")
pad13.Profile = sketch13
pad13.setExpression("Length", "Params.pad13_length")
pad13.Reversed = True
body13 = doc.addObject("PartDesign::Body", "Body012")

sketch14 = body13.newObject("Sketcher::SketchObject", "Sketch013")
sketch14.AttachmentSupport = (doc.getObject("XY_Plane012"), [""])
sketch14.MapMode = "FlatFace"
sketch14.AttachmentOffset = App.Placement(V(0, 0, 29 * 25.4), App.Rotation())
sketch14.addGeometry([
    Part.LineSegment(V(559, -51, 0), V(559, 787, 0)),
    Part.LineSegment(V(559, 787, 0), V(597, 787, 0)),
    Part.LineSegment(V(597, 787, 0), V(597, -51, 0)),
    Part.LineSegment(V(597, -51, 0), V(559, -51, 0)),
], False)
sketch14.addConstraint([
    Sketcher.Constraint("Coincident", 0, 2, 1, 1),
    Sketcher.Constraint("Coincident", 1, 2, 2, 1),
    Sketcher.Constraint("Coincident", 2, 2, 3, 1),
    Sketcher.Constraint("Coincident", 3, 2, 0, 1),
    Sketcher.Constraint("Vertical", 0),
    Sketcher.Constraint("Horizontal", 1),
    Sketcher.Constraint("Vertical", 2),
    Sketcher.Constraint("Horizontal", 3),
    Sketcher.Constraint("DistanceY", 0, 1, 0, 2, Q("33 in")),
    Sketcher.Constraint("DistanceX", 1, 1, 1, 2, Q("1.5 in")),
    Sketcher.Constraint("DistanceX", -1, 1, 0, 2, Q("22 in")),
    Sketcher.Constraint("DistanceY", -1, 1, 0, 2, Q("31 in")),
])
sketch14.setExpression("Constraints[8]", "Params.sketch14_height")
sketch14.setExpression("Constraints[9]", "Params.sketch14_width")
pad14 = body13.newObject("PartDesign::Pad", "Pad013")
pad14.Profile = sketch14
pad14.setExpression("Length", "Params.pad14_length")
pad14.Reversed = True
body14 = doc.addObject("PartDesign::Body", "Body013")

sketch15 = body14.newObject("Sketcher::SketchObject", "Sketch014")
sketch15.AttachmentSupport = (doc.getObject("XY_Plane013"), [""])
sketch15.MapMode = "FlatFace"
sketch15.AttachmentOffset = App.Placement(V(0, 0, 29 * 25.4), App.Rotation())
sketch15.addGeometry([
    Part.LineSegment(V(1168, -51, 0), V(1168, 787, 0)),
    Part.LineSegment(V(1168, 787, 0), V(1206, 787, 0)),
    Part.LineSegment(V(1206, 787, 0), V(1206, -51, 0)),
    Part.LineSegment(V(1206, -51, 0), V(1168, -51, 0)),
], False)
sketch15.addConstraint([
    Sketcher.Constraint("Coincident", 0, 2, 1, 1),
    Sketcher.Constraint("Coincident", 1, 2, 2, 1),
    Sketcher.Constraint("Coincident", 2, 2, 3, 1),
    Sketcher.Constraint("Coincident", 3, 2, 0, 1),
    Sketcher.Constraint("Vertical", 0),
    Sketcher.Constraint("Horizontal", 1),
    Sketcher.Constraint("Vertical", 2),
    Sketcher.Constraint("Horizontal", 3),
    Sketcher.Constraint("DistanceY", 0, 1, 0, 2, Q("33 in")),
    Sketcher.Constraint("DistanceX", 1, 1, 1, 2, Q("1.5 in")),
    Sketcher.Constraint("DistanceX", -1, 1, 0, 2, Q("46 in")),
    Sketcher.Constraint("DistanceY", -1, 1, 0, 2, Q("31 in")),
])
sketch15.setExpression("Constraints[8]", "Params.sketch15_height")
sketch15.setExpression("Constraints[9]", "Params.sketch15_width")
pad15 = body14.newObject("PartDesign::Pad", "Pad014")
pad15.Profile = sketch15
pad15.setExpression("Length", "Params.pad15_length")
pad15.Reversed = True
body15 = doc.addObject("PartDesign::Body", "Body014")

sketch16 = body15.newObject("Sketcher::SketchObject", "Sketch015")
sketch16.AttachmentSupport = (doc.getObject("XY_Plane014"), [""])
sketch16.MapMode = "FlatFace"
sketch16.AttachmentOffset = App.Placement(V(0, 0, 29 * 25.4), App.Rotation())
sketch16.addGeometry([
    Part.LineSegment(V(1778, -51, 0), V(1778, 787, 0)),
    Part.LineSegment(V(1778, 787, 0), V(1816, 787, 0)),
    Part.LineSegment(V(1816, 787, 0), V(1816, -51, 0)),
    Part.LineSegment(V(1816, -51, 0), V(1778, -51, 0)),
], False)
sketch16.addConstraint([
    Sketcher.Constraint("Coincident", 0, 2, 1, 1),
    Sketcher.Constraint("Coincident", 1, 2, 2, 1),
    Sketcher.Constraint("Coincident", 2, 2, 3, 1),
    Sketcher.Constraint("Coincident", 3, 2, 0, 1),
    Sketcher.Constraint("Vertical", 0),
    Sketcher.Constraint("Horizontal", 1),
    Sketcher.Constraint("Vertical", 2),
    Sketcher.Constraint("Horizontal", 3),
    Sketcher.Constraint("DistanceY", 0, 1, 0, 2, Q("33 in")),
    Sketcher.Constraint("DistanceX", 1, 1, 1, 2, Q("1.5 in")),
    Sketcher.Constraint("DistanceX", -1, 1, 0, 2, Q("70 in")),
    Sketcher.Constraint("DistanceY", -1, 1, 0, 2, Q("31 in")),
])
sketch16.setExpression("Constraints[8]", "Params.sketch16_height")
sketch16.setExpression("Constraints[9]", "Params.sketch16_width")
pad16 = body15.newObject("PartDesign::Pad", "Pad015")
pad16.Profile = sketch16
pad16.setExpression("Length", "Params.pad16_length")
pad16.Reversed = True
body16 = doc.addObject("PartDesign::Body", "Body015")

sketch17 = body16.newObject("Sketcher::SketchObject", "Sketch016")
sketch17.AttachmentSupport = (doc.getObject("XY_Plane015"), [""])
sketch17.MapMode = "FlatFace"
sketch17.AttachmentOffset = App.Placement(V(0, 0, 29 * 25.4), App.Rotation())
sketch17.addGeometry([
    Part.LineSegment(V(2388, -51, 0), V(2388, 787, 0)),
    Part.LineSegment(V(2388, 787, 0), V(2426, 787, 0)),
    Part.LineSegment(V(2426, 787, 0), V(2426, -51, 0)),
    Part.LineSegment(V(2426, -51, 0), V(2388, -51, 0)),
], False)
sketch17.addConstraint([
    Sketcher.Constraint("Coincident", 0, 2, 1, 1),
    Sketcher.Constraint("Coincident", 1, 2, 2, 1),
    Sketcher.Constraint("Coincident", 2, 2, 3, 1),
    Sketcher.Constraint("Coincident", 3, 2, 0, 1),
    Sketcher.Constraint("Vertical", 0),
    Sketcher.Constraint("Horizontal", 1),
    Sketcher.Constraint("Vertical", 2),
    Sketcher.Constraint("Horizontal", 3),
    Sketcher.Constraint("DistanceY", 0, 1, 0, 2, Q("33 in")),
    Sketcher.Constraint("DistanceX", 1, 1, 1, 2, Q("1.5 in")),
    Sketcher.Constraint("DistanceX", -1, 1, 0, 2, Q("94 in")),
    Sketcher.Constraint("DistanceY", -1, 1, 0, 2, Q("31 in")),
])
sketch17.setExpression("Constraints[8]", "Params.sketch17_height")
sketch17.setExpression("Constraints[9]", "Params.sketch17_width")
pad17 = body16.newObject("PartDesign::Pad", "Pad016")
pad17.Profile = sketch17
pad17.setExpression("Length", "Params.pad17_length")
pad17.Reversed = True

doc.recompute()
